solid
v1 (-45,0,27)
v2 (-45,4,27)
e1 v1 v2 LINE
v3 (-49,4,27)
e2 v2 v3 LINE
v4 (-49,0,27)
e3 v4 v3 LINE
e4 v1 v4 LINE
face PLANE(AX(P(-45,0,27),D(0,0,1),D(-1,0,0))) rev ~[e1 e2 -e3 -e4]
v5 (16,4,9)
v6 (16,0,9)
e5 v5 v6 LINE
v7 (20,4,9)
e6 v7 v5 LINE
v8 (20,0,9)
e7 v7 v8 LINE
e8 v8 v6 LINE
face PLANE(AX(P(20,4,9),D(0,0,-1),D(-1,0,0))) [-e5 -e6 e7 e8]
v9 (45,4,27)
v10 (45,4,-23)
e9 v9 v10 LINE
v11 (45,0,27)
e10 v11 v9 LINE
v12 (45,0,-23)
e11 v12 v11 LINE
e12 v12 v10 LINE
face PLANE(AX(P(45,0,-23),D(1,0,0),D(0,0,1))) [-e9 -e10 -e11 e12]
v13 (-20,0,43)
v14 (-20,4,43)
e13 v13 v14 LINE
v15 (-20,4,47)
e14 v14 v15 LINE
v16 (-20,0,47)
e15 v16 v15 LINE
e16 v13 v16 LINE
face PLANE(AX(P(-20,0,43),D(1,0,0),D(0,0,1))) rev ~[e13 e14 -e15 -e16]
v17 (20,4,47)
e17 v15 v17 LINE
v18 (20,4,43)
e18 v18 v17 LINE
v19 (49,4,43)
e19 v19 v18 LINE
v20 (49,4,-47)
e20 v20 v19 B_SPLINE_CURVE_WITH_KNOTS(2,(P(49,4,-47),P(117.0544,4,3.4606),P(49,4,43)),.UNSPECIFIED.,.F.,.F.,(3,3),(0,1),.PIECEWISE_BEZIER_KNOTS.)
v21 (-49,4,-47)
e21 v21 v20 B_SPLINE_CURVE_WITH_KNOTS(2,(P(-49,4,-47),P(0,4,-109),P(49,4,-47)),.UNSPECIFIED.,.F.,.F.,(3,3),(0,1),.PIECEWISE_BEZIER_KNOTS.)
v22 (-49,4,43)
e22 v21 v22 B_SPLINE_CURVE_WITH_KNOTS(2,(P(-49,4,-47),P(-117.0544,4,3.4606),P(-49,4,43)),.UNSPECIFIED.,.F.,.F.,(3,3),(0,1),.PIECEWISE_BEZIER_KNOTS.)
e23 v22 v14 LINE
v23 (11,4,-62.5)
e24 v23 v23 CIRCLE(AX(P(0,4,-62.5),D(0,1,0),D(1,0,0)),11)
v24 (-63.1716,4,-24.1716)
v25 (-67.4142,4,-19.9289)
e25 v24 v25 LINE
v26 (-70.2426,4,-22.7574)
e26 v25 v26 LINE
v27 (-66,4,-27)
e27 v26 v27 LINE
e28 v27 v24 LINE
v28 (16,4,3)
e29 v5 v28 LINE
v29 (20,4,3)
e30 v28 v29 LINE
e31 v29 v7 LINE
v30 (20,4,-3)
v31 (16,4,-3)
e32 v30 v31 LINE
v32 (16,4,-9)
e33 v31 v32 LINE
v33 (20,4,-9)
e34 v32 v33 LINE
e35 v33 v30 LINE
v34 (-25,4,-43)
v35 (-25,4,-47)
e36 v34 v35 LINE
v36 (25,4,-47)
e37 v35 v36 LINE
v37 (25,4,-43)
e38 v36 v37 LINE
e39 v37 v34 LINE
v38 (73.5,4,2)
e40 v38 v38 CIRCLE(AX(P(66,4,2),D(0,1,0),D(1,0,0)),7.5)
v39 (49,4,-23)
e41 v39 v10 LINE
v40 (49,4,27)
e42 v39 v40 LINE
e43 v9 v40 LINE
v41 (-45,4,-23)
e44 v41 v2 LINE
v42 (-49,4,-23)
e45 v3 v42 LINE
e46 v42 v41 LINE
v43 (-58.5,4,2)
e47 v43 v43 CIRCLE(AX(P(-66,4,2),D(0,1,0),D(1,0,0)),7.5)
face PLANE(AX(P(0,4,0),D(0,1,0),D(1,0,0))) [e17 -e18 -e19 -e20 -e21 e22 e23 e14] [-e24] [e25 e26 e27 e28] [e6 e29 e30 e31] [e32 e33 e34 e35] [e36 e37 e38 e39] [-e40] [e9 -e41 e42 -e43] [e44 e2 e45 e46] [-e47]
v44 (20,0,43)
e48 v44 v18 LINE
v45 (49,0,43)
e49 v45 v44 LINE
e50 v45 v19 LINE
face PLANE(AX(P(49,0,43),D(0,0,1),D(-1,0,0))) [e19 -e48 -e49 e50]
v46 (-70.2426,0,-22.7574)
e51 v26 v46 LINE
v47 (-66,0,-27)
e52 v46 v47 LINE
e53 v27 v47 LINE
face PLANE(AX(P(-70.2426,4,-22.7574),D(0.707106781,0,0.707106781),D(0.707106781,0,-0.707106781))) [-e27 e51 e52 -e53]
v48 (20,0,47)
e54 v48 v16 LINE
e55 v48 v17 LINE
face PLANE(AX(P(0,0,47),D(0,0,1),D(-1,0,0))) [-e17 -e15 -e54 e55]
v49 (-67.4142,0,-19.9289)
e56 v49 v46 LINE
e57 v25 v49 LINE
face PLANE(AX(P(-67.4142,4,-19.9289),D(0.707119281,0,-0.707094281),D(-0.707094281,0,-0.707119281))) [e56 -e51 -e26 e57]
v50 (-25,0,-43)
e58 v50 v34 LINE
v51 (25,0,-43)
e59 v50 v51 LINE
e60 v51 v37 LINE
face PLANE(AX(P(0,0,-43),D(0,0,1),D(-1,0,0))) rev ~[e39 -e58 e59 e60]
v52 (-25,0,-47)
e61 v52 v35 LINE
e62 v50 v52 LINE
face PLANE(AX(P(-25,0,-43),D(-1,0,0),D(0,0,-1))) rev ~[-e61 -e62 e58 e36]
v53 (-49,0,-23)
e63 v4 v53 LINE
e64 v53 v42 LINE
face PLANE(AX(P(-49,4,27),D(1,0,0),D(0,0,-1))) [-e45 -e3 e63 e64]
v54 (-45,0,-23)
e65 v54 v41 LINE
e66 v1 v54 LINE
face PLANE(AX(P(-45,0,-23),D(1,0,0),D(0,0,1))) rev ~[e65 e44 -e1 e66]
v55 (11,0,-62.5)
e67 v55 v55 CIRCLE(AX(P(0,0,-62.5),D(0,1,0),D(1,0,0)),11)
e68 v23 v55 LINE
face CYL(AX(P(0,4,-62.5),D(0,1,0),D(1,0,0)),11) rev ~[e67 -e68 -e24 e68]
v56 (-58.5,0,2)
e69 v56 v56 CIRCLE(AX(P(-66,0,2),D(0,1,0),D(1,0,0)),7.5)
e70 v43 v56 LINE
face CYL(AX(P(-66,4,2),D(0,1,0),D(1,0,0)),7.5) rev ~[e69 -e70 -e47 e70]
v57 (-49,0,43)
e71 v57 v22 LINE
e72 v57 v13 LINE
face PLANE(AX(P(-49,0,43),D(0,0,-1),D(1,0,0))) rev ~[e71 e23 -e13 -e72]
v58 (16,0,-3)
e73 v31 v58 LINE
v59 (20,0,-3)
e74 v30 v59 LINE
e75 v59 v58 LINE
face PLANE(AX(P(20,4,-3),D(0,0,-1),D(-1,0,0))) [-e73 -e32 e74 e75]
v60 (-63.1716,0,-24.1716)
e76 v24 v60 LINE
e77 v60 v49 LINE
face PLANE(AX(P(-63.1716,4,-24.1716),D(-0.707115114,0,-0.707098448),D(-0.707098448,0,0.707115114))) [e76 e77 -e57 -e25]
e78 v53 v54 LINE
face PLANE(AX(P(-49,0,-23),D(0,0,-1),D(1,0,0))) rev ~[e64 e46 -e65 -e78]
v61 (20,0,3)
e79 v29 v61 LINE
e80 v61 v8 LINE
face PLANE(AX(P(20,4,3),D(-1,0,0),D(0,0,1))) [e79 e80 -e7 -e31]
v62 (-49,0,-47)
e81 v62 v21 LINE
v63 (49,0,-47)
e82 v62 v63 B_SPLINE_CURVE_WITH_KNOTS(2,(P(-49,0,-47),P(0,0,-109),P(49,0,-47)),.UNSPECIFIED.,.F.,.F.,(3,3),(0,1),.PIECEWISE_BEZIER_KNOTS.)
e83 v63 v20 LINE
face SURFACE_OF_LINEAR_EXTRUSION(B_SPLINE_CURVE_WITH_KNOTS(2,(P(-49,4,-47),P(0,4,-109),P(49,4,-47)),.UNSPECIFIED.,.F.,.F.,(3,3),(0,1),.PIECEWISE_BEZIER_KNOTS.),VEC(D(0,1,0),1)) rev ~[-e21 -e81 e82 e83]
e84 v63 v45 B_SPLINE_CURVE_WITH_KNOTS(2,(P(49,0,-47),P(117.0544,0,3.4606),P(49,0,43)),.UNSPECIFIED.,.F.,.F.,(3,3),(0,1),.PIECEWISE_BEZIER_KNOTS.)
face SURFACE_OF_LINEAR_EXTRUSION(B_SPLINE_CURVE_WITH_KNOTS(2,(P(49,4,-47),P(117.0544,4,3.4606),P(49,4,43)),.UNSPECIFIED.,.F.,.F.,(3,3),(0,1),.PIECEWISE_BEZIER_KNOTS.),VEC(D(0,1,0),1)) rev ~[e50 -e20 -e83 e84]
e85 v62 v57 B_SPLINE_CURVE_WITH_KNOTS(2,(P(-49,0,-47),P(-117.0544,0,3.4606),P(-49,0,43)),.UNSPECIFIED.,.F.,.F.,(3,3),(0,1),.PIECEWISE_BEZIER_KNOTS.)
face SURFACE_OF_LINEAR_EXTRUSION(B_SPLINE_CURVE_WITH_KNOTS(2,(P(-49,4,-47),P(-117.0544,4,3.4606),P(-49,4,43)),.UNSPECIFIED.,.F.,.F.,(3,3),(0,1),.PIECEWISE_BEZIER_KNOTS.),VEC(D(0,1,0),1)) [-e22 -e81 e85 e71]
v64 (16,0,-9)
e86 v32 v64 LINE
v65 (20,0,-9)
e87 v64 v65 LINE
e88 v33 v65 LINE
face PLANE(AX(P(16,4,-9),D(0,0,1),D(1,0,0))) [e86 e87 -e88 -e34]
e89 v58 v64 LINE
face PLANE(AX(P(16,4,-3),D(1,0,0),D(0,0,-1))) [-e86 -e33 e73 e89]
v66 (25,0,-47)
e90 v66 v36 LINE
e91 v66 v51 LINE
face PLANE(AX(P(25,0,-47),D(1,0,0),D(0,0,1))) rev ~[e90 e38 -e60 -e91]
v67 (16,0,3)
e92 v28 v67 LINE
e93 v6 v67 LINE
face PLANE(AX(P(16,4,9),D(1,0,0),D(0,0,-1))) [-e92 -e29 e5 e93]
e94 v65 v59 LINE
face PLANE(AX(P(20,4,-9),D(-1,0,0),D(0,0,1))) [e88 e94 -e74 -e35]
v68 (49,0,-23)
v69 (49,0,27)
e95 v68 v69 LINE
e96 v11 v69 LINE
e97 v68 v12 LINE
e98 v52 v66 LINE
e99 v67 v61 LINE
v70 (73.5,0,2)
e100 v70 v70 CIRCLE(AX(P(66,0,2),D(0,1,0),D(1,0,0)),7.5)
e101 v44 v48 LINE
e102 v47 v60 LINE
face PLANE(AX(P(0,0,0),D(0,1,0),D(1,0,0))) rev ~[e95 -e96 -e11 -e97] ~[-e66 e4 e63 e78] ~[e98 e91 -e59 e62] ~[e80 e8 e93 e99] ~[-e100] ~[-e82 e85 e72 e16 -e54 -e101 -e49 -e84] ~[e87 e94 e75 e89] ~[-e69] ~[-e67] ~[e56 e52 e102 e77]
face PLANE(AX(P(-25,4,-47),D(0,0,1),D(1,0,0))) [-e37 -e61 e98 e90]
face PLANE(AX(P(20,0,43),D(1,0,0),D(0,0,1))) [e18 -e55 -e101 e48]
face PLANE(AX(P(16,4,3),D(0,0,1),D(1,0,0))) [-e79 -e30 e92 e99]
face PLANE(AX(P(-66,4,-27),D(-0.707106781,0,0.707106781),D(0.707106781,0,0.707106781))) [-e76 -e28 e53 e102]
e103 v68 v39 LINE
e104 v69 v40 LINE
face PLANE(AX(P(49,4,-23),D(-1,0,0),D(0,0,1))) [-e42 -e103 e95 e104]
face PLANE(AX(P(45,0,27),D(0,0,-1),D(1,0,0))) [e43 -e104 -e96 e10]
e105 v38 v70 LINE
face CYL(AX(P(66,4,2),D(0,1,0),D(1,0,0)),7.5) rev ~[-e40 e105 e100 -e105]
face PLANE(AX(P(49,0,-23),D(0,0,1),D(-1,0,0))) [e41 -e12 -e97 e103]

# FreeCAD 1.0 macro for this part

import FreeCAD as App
import Part
import Sketcher
from FreeCAD import Vector
Q = App.Units.Quantity

doc = App.newDocument("Part")
body = doc.addObject("PartDesign::Body", "Body")

sketch1 = body.newObject("Sketcher::SketchObject", "Sketch")
sketch1.AttachmentSupport = (doc.getObject("XZ_Plane"), [""])
sketch1.MapMode = "FlatFace"
sketch1.addGeometry(Part.LineSegment(Vector(-25, -47, 0), Vector(-49, -47, 0)), False)
sketch1.addGeometry(Part.LineSegment(Vector(-49, -47, 0), Vector(-49, -23, 0)), False)
sketch1.addGeometry(Part.LineSegment(Vector(-49, -23, 0), Vector(-45, -23, 0)), False)
sketch1.addGeometry(Part.LineSegment(Vector(-45, -23, 0), Vector(-45, 27, 0)), False)
sketch1.addGeometry(Part.LineSegment(Vector(-45, 27, 0), Vector(-49, 27, 0)), False)
sketch1.addGeometry(Part.LineSegment(Vector(-49, 27, 0), Vector(-49, 43, 0)), False)
sketch1.addGeometry(Part.LineSegment(Vector(-49, 43, 0), Vector(-20, 43, 0)), False)
sketch1.addGeometry(Part.LineSegment(Vector(-20, 43, 0), Vector(-20, 47, 0)), False)
sketch1.addGeometry(Part.LineSegment(Vector(-20, 47, 0), Vector(20, 47, 0)), False)
sketch1.addGeometry(Part.LineSegment(Vector(20, 47, 0), Vector(20, 43, 0)), False)
sketch1.addGeometry(Part.LineSegment(Vector(20, 43, 0), Vector(49, 43, 0)), False)
sketch1.addGeometry(Part.LineSegment(Vector(49, 43, 0), Vector(49, 27, 0)), False)
sketch1.addGeometry(Part.LineSegment(Vector(49, 27, 0), Vector(45, 27, 0)), False)
sketch1.addGeometry(Part.LineSegment(Vector(45, 27, 0), Vector(45, -23, 0)), False)
sketch1.addGeometry(Part.LineSegment(Vector(45, -23, 0), Vector(49, -23, 0)), False)
sketch1.addGeometry(Part.LineSegment(Vector(49, -23, 0), Vector(49, -47, 0)), False)
sketch1.addGeometry(Part.LineSegment(Vector(49, -47, 0), Vector(25, -47, 0)), False)
sketch1.addGeometry(Part.LineSegment(Vector(25, -47, 0), Vector(25, -43, 0)), False)
sketch1.addGeometry(Part.LineSegment(Vector(25, -43, 0), Vector(-25, -43, 0)), False)
sketch1.addGeometry(Part.LineSegment(Vector(-25, -43, 0), Vector(-25, -47, 0)), False)
sketch1.addConstraint(Sketcher.Constraint("Coincident", 0, 2, 1, 1))
sketch1.addConstraint(Sketcher.Constraint("Coincident", 1, 2, 2, 1))
sketch1.addConstraint(Sketcher.Constraint("Coincident", 2, 2, 3, 1))
sketch1.addConstraint(Sketcher.Constraint("Coincident", 3, 2, 4, 1))
sketch1.addConstraint(Sketcher.Constraint("Coincident", 4, 2, 5, 1))
sketch1.addConstraint(Sketcher.Constraint("Coincident", 5, 2, 6, 1))
sketch1.addConstraint(Sketcher.Constraint("Coincident", 6, 2, 7, 1))
sketch1.addConstraint(Sketcher.Constraint("Coincident", 7, 2, 8, 1))
sketch1.addConstraint(Sketcher.Constraint("Coincident", 8, 2, 9, 1))
sketch1.addConstraint(Sketcher.Constraint("Coincident", 9, 2, 10, 1))
sketch1.addConstraint(Sketcher.Constraint("Coincident", 10, 2, 11, 1))
sketch1.addConstraint(Sketcher.Constraint("Coincident", 11, 2, 12, 1))
sketch1.addConstraint(Sketcher.Constraint("Coincident", 12, 2, 13, 1))
sketch1.addConstraint(Sketcher.Constraint("Coincident", 13, 2, 14, 1))
sketch1.addConstraint(Sketcher.Constraint("Coincident", 14, 2, 15, 1))
sketch1.addConstraint(Sketcher.Constraint("Coincident", 15, 2, 16, 1))
sketch1.addConstraint(Sketcher.Constraint("Coincident", 16, 2, 17, 1))
sketch1.addConstraint(Sketcher.Constraint("Coincident", 17, 2, 18, 1))
sketch1.addConstraint(Sketcher.Constraint("Coincident", 18, 2, 19, 1))
sketch1.addConstraint(Sketcher.Constraint("Coincident", 19, 2, 0, 1))
sketch1.addConstraint(Sketcher.Constraint("Horizontal", 0))
sketch1.addConstraint(Sketcher.Constraint("Vertical", 1))
sketch1.addConstraint(Sketcher.Constraint("Horizontal", 2))
sketch1.addConstraint(Sketcher.Constraint("Vertical", 3))
sketch1.addConstraint(Sketcher.Constraint("Horizontal", 4))
sketch1.addConstraint(Sketcher.Constraint("Vertical", 5))
sketch1.addConstraint(Sketcher.Constraint("Horizontal", 6))
sketch1.addConstraint(Sketcher.Constraint("Vertical", 7))
sketch1.addConstraint(Sketcher.Constraint("Horizontal", 8))
sketch1.addConstraint(Sketcher.Constraint("Vertical", 9))
sketch1.addConstraint(Sketcher.Constraint("Horizontal", 10))
sketch1.addConstraint(Sketcher.Constraint("Vertical", 11))
sketch1.addConstraint(Sketcher.Constraint("Horizontal", 12))
sketch1.addConstraint(Sketcher.Constraint("Vertical", 13))
sketch1.addConstraint(Sketcher.Constraint("Horizontal", 14))
sketch1.addConstraint(Sketcher.Constraint("Vertical", 15))
sketch1.addConstraint(Sketcher.Constraint("Horizontal", 16))
sketch1.addConstraint(Sketcher.Constraint("Vertical", 17))
sketch1.addConstraint(Sketcher.Constraint("Horizontal", 18))
sketch1.addConstraint(Sketcher.Constraint("Vertical", 19))
sketch1.addConstraint(Sketcher.Constraint("Symmetric", 6, 2, 9, 2, -2))
sketch1.addConstraint(Sketcher.Constraint("Symmetric", 4, 2, 11, 2, -2))
sketch1.addConstraint(Sketcher.Constraint("Symmetric", 2, 2, 13, 2, -2))
sketch1.addConstraint(Sketcher.Constraint("Symmetric", 0, 2, 15, 2, -2))
sketch1.addConstraint(Sketcher.Constraint("Vertical", 1, 2, 4, 2))
sketch1.addConstraint(Sketcher.Constraint("Equal", 0, 16))
sketch1.addConstraint(Sketcher.Constraint("Equal", 16, 1))
sketch1.addConstraint(Sketcher.Constraint("Equal", 18, 3))
sketch1.addConstraint(Sketcher.Constraint("Equal", 14, 7))
sketch1.addConstraint(Sketcher.Constraint("Equal", 9, 17))
sketch1.addConstraint(Sketcher.Constraint("DistanceX", 2, 1, 2, 2, Q("4 mm")))
sketch1.addConstraint(Sketcher.Constraint("DistanceX", 8, 1, 8, 2, Q("40 mm")))
sketch1.addConstraint(Sketcher.Constraint("DistanceX", 18, 2, 18, 1, Q("50 mm")))
sketch1.addConstraint(Sketcher.Constraint("DistanceX", 3, 2, 10, 2, Q("94 mm")))
sketch1.addConstraint(Sketcher.Constraint("DistanceY", 5, 1, 5, 2, Q("16 mm")))
sketch1.addConstraint(Sketcher.Constraint("DistanceY", 0, 2, -1, 1, Q("47 mm")))
pad1 = body.newObject("PartDesign::Pad", "Pad")
pad1.Profile = sketch1
pad1.Length = 4
pad1.Reversed = True

sketch2 = body.newObject("Sketcher::SketchObject", "Sketch001")
sketch2.AttachmentSupport = (doc.getObject("XZ_Plane"), [""])
sketch2.MapMode = "FlatFace"
sketch2.AttachmentOffset = App.Placement(Vector(0, 0, -4), App.Rotation())
sketch2.addGeometry(Part.BSplineCurve([Vector(-49, -47, 0), Vector(0, -109, 0), Vector(49, -47, 0)], [3, 3], [0, 1], False, 2, [1, 1, 1], False), False)
sketch2.addGeometry(Part.BSplineCurve([Vector(-49, -47, 0), Vector(-117.0544, 3.4606, 0), Vector(-49, 43, 0)], [3, 3], [0, 1], False, 2, [1, 1, 1], False), False)
sketch2.addGeometry(Part.LineSegment(Vector(-49, 43, 0), Vector(-20, 43, 0)), False)
sketch2.addGeometry(Part.LineSegment(Vector(-20, 43, 0), Vector(-20, 47, 0)), False)
sketch2.addGeometry(Part.LineSegment(Vector(-20, 47, 0), Vector(20, 47, 0)), False)
sketch2.addGeometry(Part.LineSegment(Vector(20, 47, 0), Vector(20, 43, 0)), False)
sketch2.addGeometry(Part.LineSegment(Vector(20, 43, 0), Vector(49, 43, 0)), False)
sketch2.addGeometry(Part.BSplineCurve([Vector(49, -47, 0), Vector(117.0544, 3.4606, 0), Vector(49, 43, 0)], [3, 3], [0, 1], False, 2, [1, 1, 1], False), False)
sketch2.addGeometry(Part.Circle(Vector(-66, 2, 0), Vector(0, 0, 1), 7.5), False)
sketch2.addGeometry(Part.LineSegment(Vector(-70.2426, -22.7574, 0), Vector(-66, -27, 0)), False)
sketch2.addGeometry(Part.LineSegment(Vector(-66, -27, 0), Vector(-63.1716, -24.1716, 0)), False)
sketch2.addGeometry(Part.LineSegment(Vector(-63.1716, -24.1716, 0), Vector(-67.4142, -19.9289, 0)), False)
sketch2.addGeometry(Part.LineSegment(Vector(-67.4142, -19.9289, 0), Vector(-70.2426, -22.7574, 0)), False)
sketch2.addGeometry(Part.LineSegment(Vector(-49, 27, 0), Vector(-49, -23, 0)), False)
sketch2.addGeometry(Part.LineSegment(Vector(-49, -23, 0), Vector(-45, -23, 0)), False)
sketch2.addGeometry(Part.LineSegment(Vector(-45, -23, 0), Vector(-45, 27, 0)), False)
sketch2.addGeometry(Part.LineSegment(Vector(-45, 27, 0), Vector(-49, 27, 0)), False)
sketch2.addGeometry(Part.LineSegment(Vector(49, -23, 0), Vector(49, 27, 0)), False)
sketch2.addGeometry(Part.LineSegment(Vector(49, 27, 0), Vector(45, 27, 0)), False)
sketch2.addGeometry(Part.LineSegment(Vector(45, 27, 0), Vector(45, -23, 0)), False)
sketch2.addGeometry(Part.LineSegment(Vector(45, -23, 0), Vector(49, -23, 0)), False)
sketch2.addGeometry(Part.Circle(Vector(66, 2, 0), Vector(0, 0, 1), 7.5), False)
sketch2.addGeometry(Part.LineSegment(Vector(-25, -47, 0), Vector(25, -47, 0)), False)
sketch2.addGeometry(Part.LineSegment(Vector(25, -47, 0), Vector(25, -43, 0)), False)
sketch2.addGeometry(Part.LineSegment(Vector(25, -43, 0), Vector(-25, -43, 0)), False)
sketch2.addGeometry(Part.LineSegment(Vector(-25, -43, 0), Vector(-25, -47, 0)), False)
sketch2.addGeometry(Part.Circle(Vector(0, -62.5, 0), Vector(0, 0, 1), 11), False)
sketch2.addConstraint(Sketcher.Constraint("Block", 0))
sketch2.addConstraint(Sketcher.Constraint("Block", 1))
sketch2.addConstraint(Sketcher.Constraint("Block", 7))
sketch2.addConstraint(Sketcher.Constraint("Coincident", 1, 2, 2, 1))
sketch2.addConstraint(Sketcher.Constraint("Coincident", 2, 2, 3, 1))
sketch2.addConstraint(Sketcher.Constraint("Coincident", 3, 2, 4, 1))
sketch2.addConstraint(Sketcher.Constraint("Coincident", 4, 2, 5, 1))
sketch2.addConstraint(Sketcher.Constraint("Coincident", 5, 2, 6, 1))
sketch2.addConstraint(Sketcher.Constraint("Coincident", 6, 2, 7, 2))
sketch2.addConstraint(Sketcher.Constraint("Coincident", 9, 2, 10, 1))
sketch2.addConstraint(Sketcher.Constraint("Coincident", 10, 2, 11, 1))
sketch2.addConstraint(Sketcher.Constraint("Coincident", 11, 2, 12, 1))
sketch2.addConstraint(Sketcher.Constraint("Coincident", 12, 2, 9, 1))
sketch2.addConstraint(Sketcher.Constraint("Coincident", 13, 2, 14, 1))
sketch2.addConstraint(Sketcher.Constraint("Coincident", 14, 2, 15, 1))
sketch2.addConstraint(Sketcher.Constraint("Coincident", 15, 2, 16, 1))
sketch2.addConstraint(Sketcher.Constraint("Coincident", 16, 2, 13, 1))
sketch2.addConstraint(Sketcher.Constraint("Coincident", 17, 2, 18, 1))
sketch2.addConstraint(Sketcher.Constraint("Coincident", 18, 2, 19, 1))
sketch2.addConstraint(Sketcher.Constraint("Coincident", 19, 2, 20, 1))
sketch2.addConstraint(Sketcher.Constraint("Coincident", 20, 2, 17, 1))
sketch2.addConstraint(Sketcher.Constraint("Coincident", 22, 2, 23, 1))
sketch2.addConstraint(Sketcher.Constraint("Coincident", 23, 2, 24, 1))
sketch2.addConstraint(Sketcher.Constraint("Coincident", 24, 2, 25, 1))
sketch2.addConstraint(Sketcher.Constraint("Coincident", 25, 2, 22, 1))
sketch2.addConstraint(Sketcher.Constraint("Horizontal", 2))
sketch2.addConstraint(Sketcher.Constraint("Vertical", 3))
sketch2.addConstraint(Sketcher.Constraint("Horizontal", 4))
sketch2.addConstraint(Sketcher.Constraint("Vertical", 5))
sketch2.addConstraint(Sketcher.Constraint("Horizontal", 6))
sketch2.addConstraint(Sketcher.Constraint("Vertical", 13))
sketch2.addConstraint(Sketcher.Constraint("Horizontal", 14))
sketch2.addConstraint(Sketcher.Constraint("Vertical", 15))
sketch2.addConstraint(Sketcher.Constraint("Horizontal", 16))
sketch2.addConstraint(Sketcher.Constraint("Vertical", 17))
sketch2.addConstraint(Sketcher.Constraint("Horizontal", 18))
sketch2.addConstraint(Sketcher.Constraint("Vertical", 19))
sketch2.addConstraint(Sketcher.Constraint("Horizontal", 20))
sketch2.addConstraint(Sketcher.Constraint("Horizontal", 22))
sketch2.addConstraint(Sketcher.Constraint("Vertical", 23))
sketch2.addConstraint(Sketcher.Constraint("Horizontal", 24))
sketch2.addConstraint(Sketcher.Constraint("Vertical", 25))
sketch2.addConstraint(Sketcher.Constraint("Equal", 8, 21))
sketch2.addConstraint(Sketcher.Constraint("Symmetric", 8, 3, 21, 3, -2))
sketch2.addConstraint(Sketcher.Constraint("Symmetric", 16, 2, 17, 2, -2))
sketch2.addConstraint(Sketcher.Constraint("Symmetric", 14, 2, 19, 2, -2))
sketch2.addConstraint(Sketcher.Constraint("PointOnObject", 26, 3, -2))
sketch2.addConstraint(Sketcher.Constraint("Perpendicular", 9, 10))
sketch2.addConstraint(Sketcher.Constraint("Perpendicular", 10, 11))
sketch2.addConstraint(Sketcher.Constraint("Perpendicular", 11, 12))
sketch2.addConstraint(Sketcher.Constraint("Vertical", 8, 3, 9, 2))
sketch2.addConstraint(Sketcher.Constraint("Vertical", 6, 2, 17, 2))
sketch2.addConstraint(Sketcher.Constraint("Equal", 2, 6))
sketch2.addConstraint(Sketcher.Constraint("Equal", 20, 3))
sketch2.addConstraint(Sketcher.Constraint("Equal", 24, 13))
sketch2.addConstraint(Sketcher.Constraint("Equal", 5, 23))
sketch2.addConstraint(Sketcher.Constraint("Diameter", 8, Q("15 mm")))
sketch2.addConstraint(Sketcher.Constraint("Diameter", 26, Q("22 mm")))
sketch2.addConstraint(Sketcher.Constraint("DistanceX", 14, 1, 14, 2, Q("4 mm")))
sketch2.addConstraint(Sketcher.Constraint("Angle", 9, Q("-45 deg")))
sketch2.addConstraint(Sketcher.Constraint("Distance", 9, Q("6 mm")))
sketch2.addConstraint(Sketcher.Constraint("Distance", 10, Q("4 mm")))
sketch2.addConstraint(Sketcher.Constraint("DistanceX", 2, 2, -1, 1, Q("20 mm")))
sketch2.addConstraint(Sketcher.Constraint("DistanceY", 8, 3, 3, 2, Q("45 mm")))
sketch2.addConstraint(Sketcher.Constraint("DistanceX", 6, 2, 21, 3, Q("17 mm")))
sketch2.addConstraint(Sketcher.Constraint("DistanceY", 9, 2, 13, 2, Q("4 mm")))
sketch2.addConstraint(Sketcher.Constraint("DistanceY", 15, 2, 3, 2, Q("20 mm")))
sketch2.addConstraint(Sketcher.Constraint("DistanceX", 22, 2, 19, 2, Q("20 mm")))
sketch2.addConstraint(Sketcher.Constraint("DistanceY", 23, 2, 19, 2, Q("20 mm")))
sketch2.addConstraint(Sketcher.Constraint("DistanceY", 23, 2, 21, 3, Q("45 mm")))
sketch2.addConstraint(Sketcher.Constraint("DistanceY", 26, 3, 22, 2, Q("15.5 mm")))
pad2 = body.newObject("PartDesign::Pad", "Pad001")
pad2.Profile = sketch2
pad2.Length = 4

sketch3 = body.newObject("Sketcher::SketchObject", "Sketch002")
sketch3.AttachmentSupport = (doc.getObject("XZ_Plane"), [""])
sketch3.MapMode = "FlatFace"
sketch3.AttachmentOffset = App.Placement(Vector(0, 0, -4), App.Rotation())
sketch3.addGeometry(Part.LineSegment(Vector(20, -9, 0), Vector(16, -9, 0)), False)
sketch3.addGeometry(Part.LineSegment(Vector(16, -9, 0), Vector(16, -3, 0)), False)
sketch3.addGeometry(Part.LineSegment(Vector(16, -3, 0), Vector(20, -3, 0)), False)
sketch3.addGeometry(Part.LineSegment(Vector(20, -3, 0), Vector(20, -9, 0)), False)
sketch3.addGeometry(Part.LineSegment(Vector(20, 3, 0), Vector(16, 3, 0)), False)
sketch3.addGeometry(Part.LineSegment(Vector(16, 3, 0), Vector(16, 9, 0)), False)
sketch3.addGeometry(Part.LineSegment(Vector(16, 9, 0), Vector(20, 9, 0)), False)
sketch3.addGeometry(Part.LineSegment(Vector(20, 9, 0), Vector(20, 3, 0)), False)
sketch3.addConstraint(Sketcher.Constraint("Coincident", 0, 2, 1, 1))
sketch3.addConstraint(Sketcher.Constraint("Coincident", 1, 2, 2, 1))
sketch3.addConstraint(Sketcher.Constraint("Coincident", 2, 2, 3, 1))
sketch3.addConstraint(Sketcher.Constraint("Coincident", 3, 2, 0, 1))
sketch3.addConstraint(Sketcher.Constraint("Coincident", 4, 2, 5, 1))
sketch3.addConstraint(Sketcher.Constraint("Coincident", 5, 2, 6, 1))
sketch3.addConstraint(Sketcher.Constraint("Coincident", 6, 2, 7, 1))
sketch3.addConstraint(Sketcher.Constraint("Coincident", 7, 2, 4, 1))
sketch3.addConstraint(Sketcher.Constraint("Horizontal", 0))
sketch3.addConstraint(Sketcher.Constraint("Vertical", 1))
sketch3.addConstraint(Sketcher.Constraint("Horizontal", 2))
sketch3.addConstraint(Sketcher.Constraint("Vertical", 3))
sketch3.addConstraint(Sketcher.Constraint("Horizontal", 4))
sketch3.addConstraint(Sketcher.Constraint("Vertical", 5))
sketch3.addConstraint(Sketcher.Constraint("Horizontal", 6))
sketch3.addConstraint(Sketcher.Constraint("Vertical", 7))
sketch3.addConstraint(Sketcher.Constraint("Symmetric", 1, 2, 4, 2, -1))
sketch3.addConstraint(Sketcher.Constraint("Symmetric", 3, 2, 6, 2, -1))
sketch3.addConstraint(Sketcher.Constraint("DistanceX", 0, 2, 0, 1, Q("4 mm")))
sketch3.addConstraint(Sketcher.Constraint("DistanceY", 1, 1, 1, 2, Q("6 mm")))
sketch3.addConstraint(Sketcher.Constraint("DistanceY", 1, 2, 4, 2, Q("6 mm")))
sketch3.addConstraint(Sketcher.Constraint("DistanceX", -1, 1, 0, 2, Q("16 mm")))
pocket1 = body.newObject("PartDesign::Pocket", "Pocket")
pocket1.Profile = sketch3
pocket1.Type = "ThroughAll"
pocket1.Reversed = True

doc.recompute()
